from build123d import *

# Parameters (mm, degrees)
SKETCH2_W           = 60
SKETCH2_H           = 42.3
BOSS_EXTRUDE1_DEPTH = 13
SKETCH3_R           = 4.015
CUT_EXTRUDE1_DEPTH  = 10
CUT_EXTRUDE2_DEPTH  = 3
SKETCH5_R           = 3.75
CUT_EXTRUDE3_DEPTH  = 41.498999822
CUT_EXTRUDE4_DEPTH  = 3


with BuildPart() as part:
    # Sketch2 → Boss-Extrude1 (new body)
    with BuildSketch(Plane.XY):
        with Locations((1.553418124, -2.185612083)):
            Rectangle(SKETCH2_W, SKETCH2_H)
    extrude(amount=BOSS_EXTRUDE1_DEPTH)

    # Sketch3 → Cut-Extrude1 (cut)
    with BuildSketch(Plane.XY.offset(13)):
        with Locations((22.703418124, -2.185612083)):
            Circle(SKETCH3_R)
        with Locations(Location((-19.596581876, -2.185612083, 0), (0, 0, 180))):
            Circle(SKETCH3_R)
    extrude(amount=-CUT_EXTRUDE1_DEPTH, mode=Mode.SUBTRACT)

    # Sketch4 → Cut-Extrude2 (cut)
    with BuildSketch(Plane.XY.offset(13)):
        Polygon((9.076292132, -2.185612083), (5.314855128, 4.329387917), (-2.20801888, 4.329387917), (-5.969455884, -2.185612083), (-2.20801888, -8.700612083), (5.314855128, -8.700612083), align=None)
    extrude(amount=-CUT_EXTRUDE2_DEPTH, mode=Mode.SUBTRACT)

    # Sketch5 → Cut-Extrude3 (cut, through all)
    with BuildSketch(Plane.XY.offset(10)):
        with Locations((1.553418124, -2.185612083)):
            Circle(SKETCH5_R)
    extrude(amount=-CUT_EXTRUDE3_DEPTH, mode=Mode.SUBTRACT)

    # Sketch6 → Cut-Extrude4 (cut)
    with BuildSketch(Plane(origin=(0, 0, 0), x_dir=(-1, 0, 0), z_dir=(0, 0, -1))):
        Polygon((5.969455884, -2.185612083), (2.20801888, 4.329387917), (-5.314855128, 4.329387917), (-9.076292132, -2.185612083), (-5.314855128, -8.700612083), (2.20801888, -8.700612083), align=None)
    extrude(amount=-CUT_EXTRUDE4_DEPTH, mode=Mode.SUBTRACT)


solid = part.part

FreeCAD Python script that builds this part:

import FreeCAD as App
import Part
import Sketcher
from FreeCAD import Vector
Q = App.Units.Quantity

doc = App.newDocument("Part")
body = doc.addObject("PartDesign::Body", "Body")

sketch1 = body.newObject("Sketcher::SketchObject", "Sketch")
sketch1.AttachmentSupport = (doc.getObject("XY_Plane"), [""])
sketch1.MapMode = "FlatFace"
sketch1.addGeometry(Part.LineSegment(Vector(-28, 19, 0), Vector(-28, -23, 0)), False)
sketch1.addGeometry(Part.LineSegment(Vector(-28, -23, 0), Vector(32, -23, 0)), False)
sketch1.addGeometry(Part.LineSegment(Vector(32, -23, 0), Vector(32, 19, 0)), False)
sketch1.addGeometry(Part.LineSegment(Vector(32, 19, 0), Vector(-28, 19, 0)), False)
sketch1.addConstraint(Sketcher.Constraint("Coincident", 0, 2, 1, 1))
sketch1.addConstraint(Sketcher.Constraint("Coincident", 1, 2, 2, 1))
sketch1.addConstraint(Sketcher.Constraint("Coincident", 2, 2, 3, 1))
sketch1.addConstraint(Sketcher.Constraint("Coincident", 3, 2, 0, 1))
sketch1.addConstraint(Sketcher.Constraint("Vertical", 0))
sketch1.addConstraint(Sketcher.Constraint("Horizontal", 1))
sketch1.addConstraint(Sketcher.Constraint("Vertical", 2))
sketch1.addConstraint(Sketcher.Constraint("Horizontal", 3))
sketch1.addConstraint(Sketcher.Constraint("DistanceX", 1, 1, 1, 2, Q("60 mm")))
sketch1.addConstraint(Sketcher.Constraint("DistanceY", 0, 2, 0, 1, Q("42.3 mm")))
sketch1.addConstraint(Sketcher.Constraint("DistanceX", 0, 2, -1, 1, Q("28.446582 mm")))
sketch1.addConstraint(Sketcher.Constraint("DistanceY", 0, 2, -1, 1, Q("23.335612 mm")))
pad1 = body.newObject("PartDesign::Pad", "Pad")
pad1.Profile = sketch1
pad1.Length = 13

sketch2 = body.newObject("Sketcher::SketchObject", "Sketch001")
sketch2.AttachmentSupport = (doc.getObject("XY_Plane"), [""])
sketch2.MapMode = "FlatFace"
sketch2.AttachmentOffset = App.Placement(Vector(0, 0, 13), App.Rotation())
sketch2.addGeometry(Part.Circle(Vector(22.7, -2.2, 0), Vector(0, 0, 1), 4), False)
sketch2.addGeometry(Part.Circle(Vector(-19.6, -2.2, 0), Vector(0, 0, 1), 4), False)
sketch2.addConstraint(Sketcher.Constraint("Equal", 0, 1))
sketch2.addConstraint(Sketcher.Constraint("Horizontal", 0, 3, 1, 3))
sketch2.addConstraint(Sketcher.Constraint("Diameter", 0, Q("8.03 mm")))
sketch2.addConstraint(Sketcher.Constraint("DistanceX", 1, 3, 0, 3, Q("42.3 mm")))
sketch2.addConstraint(Sketcher.Constraint("DistanceX", -1, 1, 0, 3, Q("22.703418 mm")))
sketch2.addConstraint(Sketcher.Constraint("DistanceY", 0, 3, -1, 1, Q("2.185612 mm")))
pocket1 = body.newObject("PartDesign::Pocket", "Pocket")
pocket1.Profile = sketch2
pocket1.Length = 10

sketch3 = body.newObject("Sketcher::SketchObject", "Sketch002")
sketch3.AttachmentSupport = (doc.getObject("XY_Plane"), [""])
sketch3.MapMode = "FlatFace"
sketch3.AttachmentOffset = App.Placement(Vector(0, 0, 13), App.Rotation())
sketch3.addGeometry(Part.LineSegment(Vector(9, -2, 0), Vector(5, 4, 0)), False)
sketch3.addGeometry(Part.LineSegment(Vector(5, 4, 0), Vector(-2, 4, 0)), False)
sketch3.addGeometry(Part.LineSegment(Vector(-2, 4, 0), Vector(-6, -2, 0)), False)
sketch3.addGeometry(Part.LineSegment(Vector(-6, -2, 0), Vector(-2, -9, 0)), False)
sketch3.addGeometry(Part.LineSegment(Vector(-2, -9, 0), Vector(5, -9, 0)), False)
sketch3.addGeometry(Part.LineSegment(Vector(5, -9, 0), Vector(9, -2, 0)), False)
sketch3.addConstraint(Sketcher.Constraint("Coincident", 0, 2, 1, 1))
sketch3.addConstraint(Sketcher.Constraint("Coincident", 1, 2, 2, 1))
sketch3.addConstraint(Sketcher.Constraint("Coincident", 2, 2, 3, 1))
sketch3.addConstraint(Sketcher.Constraint("Coincident", 3, 2, 4, 1))
sketch3.addConstraint(Sketcher.Constraint("Coincident", 4, 2, 5, 1))
sketch3.addConstraint(Sketcher.Constraint("Coincident", 5, 2, 0, 1))
sketch3.addConstraint(Sketcher.Constraint("Horizontal", 1))
sketch3.addConstraint(Sketcher.Constraint("Horizontal", 4))
sketch3.addConstraint(Sketcher.Constraint("Parallel", 0, 3))
sketch3.addConstraint(Sketcher.Constraint("Parallel", 2, 5))
sketch3.addConstraint(Sketcher.Constraint("Horizontal", 2, 2, 5, 2))
sketch3.addConstraint(Sketcher.Constraint("Vertical", 1, 2, 3, 2))
sketch3.addConstraint(Sketcher.Constraint("Vertical", 0, 2, 4, 2))
sketch3.addConstraint(Sketcher.Constraint("Angle", 0, Q("120 deg")))
sketch3.addConstraint(Sketcher.Constraint("DistanceY", 3, 2, 1, 2, Q("13.03 mm")))
sketch3.addConstraint(Sketcher.Constraint("DistanceX", 1, 2, 1, 1, Q("7.522874 mm")))
sketch3.addConstraint(Sketcher.Constraint("DistanceX", 1, 2, -1, 1, Q("2.208019 mm")))
sketch3.addConstraint(Sketcher.Constraint("DistanceY", -1, 1, 0, 2, Q("4.329388 mm")))
pocket2 = body.newObject("PartDesign::Pocket", "Pocket001")
pocket2.Profile = sketch3
pocket2.Length = 3

sketch4 = body.newObject("Sketcher::SketchObject", "Sketch003")
sketch4.AttachmentSupport = (doc.getObject("XY_Plane"), [""])
sketch4.MapMode = "FlatFace"
sketch4.AttachmentOffset = App.Placement(Vector(0, 0, 10), App.Rotation())
sketch4.addGeometry(Part.Circle(Vector(1.6, -2.2, 0), Vector(0, 0, 1), 3.8), False)
sketch4.addConstraint(Sketcher.Constraint("Diameter", 0, Q("7.5 mm")))
sketch4.addConstraint(Sketcher.Constraint("DistanceX", -1, 1, 0, 3, Q("1.553418 mm")))
sketch4.addConstraint(Sketcher.Constraint("DistanceY", 0, 3, -1, 1, Q("2.185612 mm")))
pocket3 = body.newObject("PartDesign::Pocket", "Pocket002")
pocket3.Profile = sketch4
pocket3.Type = "ThroughAll"

sketch5 = body.newObject("Sketcher::SketchObject", "Sketch004")
sketch5.AttachmentSupport = (doc.getObject("XY_Plane"), [""])
sketch5.MapMode = "FlatFace"
sketch5.addGeometry(Part.LineSegment(Vector(-6, -2, 0), Vector(-2, 4, 0)), False)
sketch5.addGeometry(Part.LineSegment(Vector(-2, 4, 0), Vector(5, 4, 0)), False)
sketch5.addGeometry(Part.LineSegment(Vector(5, 4, 0), Vector(9, -2, 0)), False)
sketch5.addGeometry(Part.LineSegment(Vector(9, -2, 0), Vector(5, -9, 0)), False)
sketch5.addGeometry(Part.LineSegment(Vector(5, -9, 0), Vector(-2, -9, 0)), False)
sketch5.addGeometry(Part.LineSegment(Vector(-2, -9, 0), Vector(-6, -2, 0)), False)
sketch5.addConstraint(Sketcher.Constraint("Coincident", 0, 2, 1, 1))
sketch5.addConstraint(Sketcher.Constraint("Coincident", 1, 2, 2, 1))
sketch5.addConstraint(Sketcher.Constraint("Coincident", 2, 2, 3, 1))
sketch5.addConstraint(Sketcher.Constraint("Coincident", 3, 2, 4, 1))
sketch5.addConstraint(Sketcher.Constraint("Coincident", 4, 2, 5, 1))
sketch5.addConstraint(Sketcher.Constraint("Coincident", 5, 2, 0, 1))
sketch5.addConstraint(Sketcher.Constraint("Horizontal", 1))
sketch5.addConstraint(Sketcher.Constraint("Horizontal", 4))
sketch5.addConstraint(Sketcher.Constraint("Parallel", 0, 3))
sketch5.addConstraint(Sketcher.Constraint("Parallel", 2, 5))
sketch5.addConstraint(Sketcher.Constraint("Horizontal", 2, 2, 5, 2))
sketch5.addConstraint(Sketcher.Constraint("Vertical", 1, 2, 3, 2))
sketch5.addConstraint(Sketcher.Constraint("Vertical", 0, 2, 4, 2))
sketch5.addConstraint(Sketcher.Constraint("Angle", 0, Q("60 deg")))
sketch5.addConstraint(Sketcher.Constraint("DistanceY", 3, 2, 1, 2, Q("13.03 mm")))
sketch5.addConstraint(Sketcher.Constraint("DistanceX", 1, 1, 1, 2, Q("7.522874 mm")))
sketch5.addConstraint(Sketcher.Constraint("DistanceX", 0, 2, -1, 1, Q("2.208019 mm")))
sketch5.addConstraint(Sketcher.Constraint("DistanceY", -1, 1, 0, 2, Q("4.329388 mm")))
pocket4 = body.newObject("PartDesign::Pocket", "Pocket003")
pocket4.Profile = sketch5
pocket4.Length = 3
pocket4.Reversed = True

doc.recompute()
